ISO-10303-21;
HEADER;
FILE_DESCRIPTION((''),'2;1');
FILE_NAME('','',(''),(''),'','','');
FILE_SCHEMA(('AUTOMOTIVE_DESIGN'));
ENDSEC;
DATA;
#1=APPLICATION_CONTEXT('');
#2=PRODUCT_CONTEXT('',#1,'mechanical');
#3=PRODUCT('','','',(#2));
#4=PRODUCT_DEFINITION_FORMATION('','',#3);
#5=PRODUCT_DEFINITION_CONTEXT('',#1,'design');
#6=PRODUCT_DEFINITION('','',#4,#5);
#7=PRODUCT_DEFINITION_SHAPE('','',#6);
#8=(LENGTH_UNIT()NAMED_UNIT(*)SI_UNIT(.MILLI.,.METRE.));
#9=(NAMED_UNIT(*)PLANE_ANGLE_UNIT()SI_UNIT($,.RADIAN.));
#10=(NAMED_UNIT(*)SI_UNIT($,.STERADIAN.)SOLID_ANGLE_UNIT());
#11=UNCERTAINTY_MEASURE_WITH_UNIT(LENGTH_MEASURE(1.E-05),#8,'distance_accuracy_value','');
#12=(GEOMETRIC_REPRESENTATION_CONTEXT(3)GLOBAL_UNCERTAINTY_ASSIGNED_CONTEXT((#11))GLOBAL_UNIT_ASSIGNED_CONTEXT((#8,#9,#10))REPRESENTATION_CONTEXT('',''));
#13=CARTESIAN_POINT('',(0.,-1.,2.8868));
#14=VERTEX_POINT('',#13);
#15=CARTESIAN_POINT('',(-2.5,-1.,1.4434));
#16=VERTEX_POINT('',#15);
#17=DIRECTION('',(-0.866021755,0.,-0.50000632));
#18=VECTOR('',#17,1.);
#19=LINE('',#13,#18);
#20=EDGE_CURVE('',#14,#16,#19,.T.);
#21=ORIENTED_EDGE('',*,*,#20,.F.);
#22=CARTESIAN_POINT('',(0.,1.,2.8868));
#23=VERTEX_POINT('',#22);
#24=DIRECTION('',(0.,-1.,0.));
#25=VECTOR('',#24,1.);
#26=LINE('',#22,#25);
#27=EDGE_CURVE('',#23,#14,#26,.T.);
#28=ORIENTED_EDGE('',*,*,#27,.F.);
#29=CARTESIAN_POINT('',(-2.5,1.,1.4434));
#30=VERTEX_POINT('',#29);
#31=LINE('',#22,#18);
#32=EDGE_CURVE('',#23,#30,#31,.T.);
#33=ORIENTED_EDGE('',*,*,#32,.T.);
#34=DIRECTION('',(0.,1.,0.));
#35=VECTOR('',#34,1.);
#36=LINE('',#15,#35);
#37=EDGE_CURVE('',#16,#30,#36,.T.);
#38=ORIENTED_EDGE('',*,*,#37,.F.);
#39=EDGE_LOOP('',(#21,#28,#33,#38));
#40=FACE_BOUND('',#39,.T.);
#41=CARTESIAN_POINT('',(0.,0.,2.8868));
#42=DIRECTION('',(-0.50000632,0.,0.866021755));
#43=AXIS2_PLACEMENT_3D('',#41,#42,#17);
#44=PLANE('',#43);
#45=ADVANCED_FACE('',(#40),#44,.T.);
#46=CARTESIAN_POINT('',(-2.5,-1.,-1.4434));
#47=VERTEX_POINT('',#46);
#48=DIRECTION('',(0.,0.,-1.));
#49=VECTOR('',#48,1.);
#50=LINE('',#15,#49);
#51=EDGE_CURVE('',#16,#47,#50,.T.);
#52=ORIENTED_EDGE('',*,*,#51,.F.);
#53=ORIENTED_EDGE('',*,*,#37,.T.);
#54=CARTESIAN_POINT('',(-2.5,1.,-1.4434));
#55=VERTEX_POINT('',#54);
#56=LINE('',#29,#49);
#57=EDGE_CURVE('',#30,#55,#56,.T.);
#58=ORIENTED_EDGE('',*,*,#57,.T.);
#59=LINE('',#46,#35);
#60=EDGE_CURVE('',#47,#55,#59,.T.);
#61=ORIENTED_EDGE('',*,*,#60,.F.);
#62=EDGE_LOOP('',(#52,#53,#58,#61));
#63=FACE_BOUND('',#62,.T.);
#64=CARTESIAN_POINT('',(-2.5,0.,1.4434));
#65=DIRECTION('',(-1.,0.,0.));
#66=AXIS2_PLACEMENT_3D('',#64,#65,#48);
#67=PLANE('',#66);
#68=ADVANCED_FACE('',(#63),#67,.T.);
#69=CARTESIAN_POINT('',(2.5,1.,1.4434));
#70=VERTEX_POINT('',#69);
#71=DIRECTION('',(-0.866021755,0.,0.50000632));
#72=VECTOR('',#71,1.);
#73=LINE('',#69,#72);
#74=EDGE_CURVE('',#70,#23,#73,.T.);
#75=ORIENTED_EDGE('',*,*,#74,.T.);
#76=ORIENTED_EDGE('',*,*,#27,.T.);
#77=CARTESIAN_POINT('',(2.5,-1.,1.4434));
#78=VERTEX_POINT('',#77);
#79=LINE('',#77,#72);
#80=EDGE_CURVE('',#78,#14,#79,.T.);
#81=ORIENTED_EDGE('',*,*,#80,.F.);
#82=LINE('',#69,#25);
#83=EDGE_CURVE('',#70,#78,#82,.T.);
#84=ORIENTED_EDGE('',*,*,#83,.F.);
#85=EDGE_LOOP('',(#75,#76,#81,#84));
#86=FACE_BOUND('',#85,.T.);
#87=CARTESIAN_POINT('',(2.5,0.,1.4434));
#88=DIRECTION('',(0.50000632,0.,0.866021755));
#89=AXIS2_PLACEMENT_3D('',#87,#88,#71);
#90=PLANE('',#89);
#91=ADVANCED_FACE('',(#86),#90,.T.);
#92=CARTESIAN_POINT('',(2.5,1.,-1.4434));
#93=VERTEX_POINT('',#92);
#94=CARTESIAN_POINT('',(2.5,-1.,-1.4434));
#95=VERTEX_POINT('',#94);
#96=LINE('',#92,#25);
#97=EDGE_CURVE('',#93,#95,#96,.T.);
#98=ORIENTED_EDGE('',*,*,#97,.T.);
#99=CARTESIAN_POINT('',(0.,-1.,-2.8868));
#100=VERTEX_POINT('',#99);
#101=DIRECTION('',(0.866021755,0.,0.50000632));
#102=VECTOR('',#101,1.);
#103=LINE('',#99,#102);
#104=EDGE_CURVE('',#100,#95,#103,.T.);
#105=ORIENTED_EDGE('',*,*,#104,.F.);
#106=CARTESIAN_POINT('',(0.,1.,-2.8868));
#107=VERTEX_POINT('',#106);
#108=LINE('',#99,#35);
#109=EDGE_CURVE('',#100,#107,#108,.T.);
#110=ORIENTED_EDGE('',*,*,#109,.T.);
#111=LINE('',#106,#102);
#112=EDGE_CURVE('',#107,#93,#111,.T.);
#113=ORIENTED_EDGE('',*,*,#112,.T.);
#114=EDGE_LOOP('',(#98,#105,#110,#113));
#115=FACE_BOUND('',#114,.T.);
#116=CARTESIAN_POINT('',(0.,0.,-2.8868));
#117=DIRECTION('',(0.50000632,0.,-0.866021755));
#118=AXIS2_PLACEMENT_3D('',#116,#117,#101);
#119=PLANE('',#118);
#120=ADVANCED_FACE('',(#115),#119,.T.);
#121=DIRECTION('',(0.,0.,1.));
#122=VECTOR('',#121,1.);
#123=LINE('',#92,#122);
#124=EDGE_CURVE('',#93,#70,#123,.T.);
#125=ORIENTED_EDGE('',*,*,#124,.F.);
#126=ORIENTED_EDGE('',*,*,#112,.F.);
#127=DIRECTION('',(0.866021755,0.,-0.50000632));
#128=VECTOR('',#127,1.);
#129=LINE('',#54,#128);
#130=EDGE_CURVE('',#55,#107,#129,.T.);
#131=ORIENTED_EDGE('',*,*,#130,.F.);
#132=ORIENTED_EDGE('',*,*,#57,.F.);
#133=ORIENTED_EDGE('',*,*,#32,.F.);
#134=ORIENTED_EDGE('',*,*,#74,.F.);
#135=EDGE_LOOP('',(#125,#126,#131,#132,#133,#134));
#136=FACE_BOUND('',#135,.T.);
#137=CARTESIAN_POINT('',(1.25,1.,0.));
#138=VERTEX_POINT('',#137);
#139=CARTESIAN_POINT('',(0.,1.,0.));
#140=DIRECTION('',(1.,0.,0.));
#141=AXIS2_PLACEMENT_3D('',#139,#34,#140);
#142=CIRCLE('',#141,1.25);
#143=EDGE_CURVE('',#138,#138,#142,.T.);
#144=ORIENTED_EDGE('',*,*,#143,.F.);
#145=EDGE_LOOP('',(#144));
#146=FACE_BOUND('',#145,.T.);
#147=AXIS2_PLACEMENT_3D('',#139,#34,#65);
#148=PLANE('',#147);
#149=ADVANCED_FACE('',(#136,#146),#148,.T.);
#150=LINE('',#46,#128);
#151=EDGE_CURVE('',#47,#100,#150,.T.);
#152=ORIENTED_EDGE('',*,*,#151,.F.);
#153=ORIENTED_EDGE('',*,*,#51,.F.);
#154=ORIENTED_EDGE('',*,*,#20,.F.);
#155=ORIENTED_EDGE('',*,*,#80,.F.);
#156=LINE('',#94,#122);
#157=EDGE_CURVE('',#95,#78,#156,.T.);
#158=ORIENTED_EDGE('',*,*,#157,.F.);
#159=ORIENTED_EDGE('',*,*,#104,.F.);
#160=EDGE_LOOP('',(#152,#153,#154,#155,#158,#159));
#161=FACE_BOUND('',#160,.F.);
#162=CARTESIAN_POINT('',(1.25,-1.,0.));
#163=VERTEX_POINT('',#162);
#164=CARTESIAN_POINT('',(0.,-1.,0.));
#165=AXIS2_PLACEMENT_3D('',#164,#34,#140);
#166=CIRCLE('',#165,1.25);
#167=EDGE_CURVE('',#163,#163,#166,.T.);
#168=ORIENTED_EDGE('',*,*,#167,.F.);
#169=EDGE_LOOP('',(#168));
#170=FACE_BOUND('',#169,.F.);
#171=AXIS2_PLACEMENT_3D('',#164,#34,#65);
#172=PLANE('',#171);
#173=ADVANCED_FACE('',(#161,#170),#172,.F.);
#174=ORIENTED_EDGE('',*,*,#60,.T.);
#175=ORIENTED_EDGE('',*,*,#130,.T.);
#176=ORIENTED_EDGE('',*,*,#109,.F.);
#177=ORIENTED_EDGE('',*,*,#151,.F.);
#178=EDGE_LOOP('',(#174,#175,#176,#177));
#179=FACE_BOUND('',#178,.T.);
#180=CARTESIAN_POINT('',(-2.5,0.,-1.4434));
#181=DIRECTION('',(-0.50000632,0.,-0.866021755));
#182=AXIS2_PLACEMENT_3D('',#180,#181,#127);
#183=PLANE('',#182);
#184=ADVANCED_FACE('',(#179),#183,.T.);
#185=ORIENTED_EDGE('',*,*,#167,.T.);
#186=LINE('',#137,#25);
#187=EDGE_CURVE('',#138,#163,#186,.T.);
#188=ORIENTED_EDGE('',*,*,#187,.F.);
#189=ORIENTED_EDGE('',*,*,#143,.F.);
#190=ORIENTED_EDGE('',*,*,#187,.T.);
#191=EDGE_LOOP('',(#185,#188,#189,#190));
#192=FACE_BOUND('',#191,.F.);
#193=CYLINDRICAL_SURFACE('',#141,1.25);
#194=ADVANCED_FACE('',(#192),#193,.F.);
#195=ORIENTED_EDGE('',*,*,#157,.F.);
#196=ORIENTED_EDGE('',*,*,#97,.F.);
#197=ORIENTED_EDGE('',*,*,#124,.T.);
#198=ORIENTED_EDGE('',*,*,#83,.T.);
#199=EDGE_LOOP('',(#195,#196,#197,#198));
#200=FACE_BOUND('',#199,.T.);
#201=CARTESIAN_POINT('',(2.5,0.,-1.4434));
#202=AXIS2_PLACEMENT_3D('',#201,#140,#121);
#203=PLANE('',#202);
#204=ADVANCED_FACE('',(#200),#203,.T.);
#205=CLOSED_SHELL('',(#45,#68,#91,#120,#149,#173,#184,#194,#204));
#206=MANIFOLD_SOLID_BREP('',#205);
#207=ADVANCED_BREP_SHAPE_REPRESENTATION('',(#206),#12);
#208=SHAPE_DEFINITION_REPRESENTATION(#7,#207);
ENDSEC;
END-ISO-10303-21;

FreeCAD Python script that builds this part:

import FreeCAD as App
import Part
import Sketcher

V = App.Vector
Q = App.Units.Quantity

doc = App.newDocument("Part")
body = doc.addObject("PartDesign::Body", "Body")

# Sketch on XZ plane
sketch1 = body.newObject("Sketcher::SketchObject", "Sketch")
sketch1.AttachmentSupport = (doc.getObject("XZ_Plane"), [""])
sketch1.MapMode = "FlatFace"
sketch1.addGeometry(Part.LineSegment(V(2.5, -1.4, 0), V(0, -2.9, 0)), False)
sketch1.addGeometry(Part.LineSegment(V(0, -2.9, 0), V(-2.5, -1.4, 0)), False)
sketch1.addGeometry(Part.LineSegment(V(-2.5, -1.4, 0), V(-2.5, 1.4, 0)), False)
sketch1.addGeometry(Part.LineSegment(V(-2.5, 1.4, 0), V(0, 2.9, 0)), False)
sketch1.addGeometry(Part.LineSegment(V(0, 2.9, 0), V(2.5, 1.4, 0)), False)
sketch1.addGeometry(Part.LineSegment(V(2.5, 1.4, 0), V(2.5, -1.4, 0)), False)
sketch1.addConstraint(Sketcher.Constraint("Coincident", 0, 2, 1, 1))
sketch1.addConstraint(Sketcher.Constraint("Coincident", 1, 2, 2, 1))
sketch1.addConstraint(Sketcher.Constraint("Coincident", 2, 2, 3, 1))
sketch1.addConstraint(Sketcher.Constraint("Coincident", 3, 2, 4, 1))
sketch1.addConstraint(Sketcher.Constraint("Coincident", 4, 2, 5, 1))
sketch1.addConstraint(Sketcher.Constraint("Coincident", 5, 2, 0, 1))
sketch1.addConstraint(Sketcher.Constraint("Vertical", 2))
sketch1.addConstraint(Sketcher.Constraint("Vertical", 5))
sketch1.addConstraint(Sketcher.Constraint("Symmetric", 0, 2, 3, 2, -1, 1))
sketch1.addConstraint(Sketcher.Constraint("Symmetric", 1, 2, 4, 2, -1, 1))
sketch1.addConstraint(Sketcher.Constraint("PointOnObject", 0, 2, -2))
sketch1.addConstraint(Sketcher.Constraint("Parallel", 0, 3))
sketch1.addConstraint(Sketcher.Constraint("Horizontal", 2, 2, 4, 2))
sketch1.addConstraint(Sketcher.Constraint("DistanceX", 2, 2, 4, 2, 5.0))
sketch1.addConstraint(Sketcher.Constraint("Angle", 0, Q("-149.9996 deg")))
sketch1.addConstraint(Sketcher.Constraint("DistanceY", 2, 1, 2, 2, 2.8868))
pad1 = body.newObject("PartDesign::Pad", "Pad")
pad1.Profile = sketch1
pad1.Length = 2
pad1.Midplane = True

# Sketch on XZ plane
sketch2 = body.newObject("Sketcher::SketchObject", "Sketch001")
sketch2.AttachmentSupport = (doc.getObject("XZ_Plane"), [""])
sketch2.MapMode = "FlatFace"
sketch2.AttachmentOffset = App.Placement(V(0, 0, -1), App.Rotation())
sketch2.addGeometry(Part.Circle(V(0, 0, 0), V(0, 0, 1), 1.2), False)
sketch2.addConstraint(Sketcher.Constraint("Coincident", 0, 3, -1, 1))
sketch2.addConstraint(Sketcher.Constraint("Diameter", 0, 2.5))
pocket1 = body.newObject("PartDesign::Pocket", "Pocket")
pocket1.Profile = sketch2
pocket1.Type = "ThroughAll"
pocket1.Reversed = True

doc.recompute()
